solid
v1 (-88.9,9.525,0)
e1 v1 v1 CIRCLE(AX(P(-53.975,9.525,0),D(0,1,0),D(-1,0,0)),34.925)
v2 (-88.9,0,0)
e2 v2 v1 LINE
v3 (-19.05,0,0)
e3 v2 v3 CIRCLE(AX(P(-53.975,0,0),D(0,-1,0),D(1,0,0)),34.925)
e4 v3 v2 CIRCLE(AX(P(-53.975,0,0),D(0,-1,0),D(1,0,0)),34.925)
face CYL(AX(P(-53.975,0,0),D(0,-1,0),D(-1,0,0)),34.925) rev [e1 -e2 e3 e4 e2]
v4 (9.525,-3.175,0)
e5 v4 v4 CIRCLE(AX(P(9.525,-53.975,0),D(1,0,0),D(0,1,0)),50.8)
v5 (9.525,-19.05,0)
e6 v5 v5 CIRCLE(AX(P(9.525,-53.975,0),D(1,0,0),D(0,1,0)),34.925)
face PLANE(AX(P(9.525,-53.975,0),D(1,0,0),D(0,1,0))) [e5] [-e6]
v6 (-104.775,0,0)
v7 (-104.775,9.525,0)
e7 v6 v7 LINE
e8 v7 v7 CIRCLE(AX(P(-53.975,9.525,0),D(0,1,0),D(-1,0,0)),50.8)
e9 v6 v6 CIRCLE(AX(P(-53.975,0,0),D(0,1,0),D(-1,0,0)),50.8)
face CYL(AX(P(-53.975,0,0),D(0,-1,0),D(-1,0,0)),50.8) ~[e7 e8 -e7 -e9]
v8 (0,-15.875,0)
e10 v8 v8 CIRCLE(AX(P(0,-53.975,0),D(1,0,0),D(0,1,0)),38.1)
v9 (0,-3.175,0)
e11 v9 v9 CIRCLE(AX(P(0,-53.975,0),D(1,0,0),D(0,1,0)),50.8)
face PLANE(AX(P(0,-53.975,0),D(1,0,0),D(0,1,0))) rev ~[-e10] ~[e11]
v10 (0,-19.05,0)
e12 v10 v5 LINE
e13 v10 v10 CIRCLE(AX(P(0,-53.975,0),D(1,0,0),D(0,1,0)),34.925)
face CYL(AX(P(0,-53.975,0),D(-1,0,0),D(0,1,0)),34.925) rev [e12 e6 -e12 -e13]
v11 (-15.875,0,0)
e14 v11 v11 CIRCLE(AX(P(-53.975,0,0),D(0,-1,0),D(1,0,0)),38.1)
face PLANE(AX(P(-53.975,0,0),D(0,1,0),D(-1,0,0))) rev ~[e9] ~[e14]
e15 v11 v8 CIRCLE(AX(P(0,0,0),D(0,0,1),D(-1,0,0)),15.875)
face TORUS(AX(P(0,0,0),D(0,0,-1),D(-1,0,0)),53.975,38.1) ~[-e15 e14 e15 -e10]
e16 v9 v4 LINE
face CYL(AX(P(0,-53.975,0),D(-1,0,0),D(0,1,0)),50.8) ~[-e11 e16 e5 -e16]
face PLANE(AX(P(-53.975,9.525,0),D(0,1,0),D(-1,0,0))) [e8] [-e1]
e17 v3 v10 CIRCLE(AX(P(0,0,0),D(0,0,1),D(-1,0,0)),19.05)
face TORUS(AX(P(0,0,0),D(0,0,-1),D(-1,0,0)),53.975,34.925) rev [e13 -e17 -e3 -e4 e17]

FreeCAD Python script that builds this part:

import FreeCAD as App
import Part
import Sketcher

V = App.Vector
Q = App.Units.Quantity

doc = App.newDocument("Part")
body = doc.addObject("PartDesign::Body", "Body")

# Sketch on XZ plane
sketch1 = body.newObject("Sketcher::SketchObject", "Sketch")
sketch1.AttachmentSupport = (doc.getObject("XZ_Plane"), [""])
sketch1.MapMode = "FlatFace"
sketch1.addGeometry([
    Part.Circle(V(-53.975, 0, 0), V(0, 0, 1), 38.1),
    Part.Circle(V(-53.975, 0, 0), V(0, 0, 1), 34.925),
], False)
sketch1.addConstraint([
    Sketcher.Constraint("Coincident", 1, 3, 0, 3),
    Sketcher.Constraint("PointOnObject", 0, 3, -1),
    Sketcher.Constraint("Diameter", 0, Q("3 in")),
    Sketcher.Constraint("Diameter", 1, Q("2.75 in")),
    Sketcher.Constraint("DistanceX", 0, 3, -1, 1, Q("2.125 in")),
])
revolution = body.newObject("PartDesign::Revolution", "Revolution")
revolution.Profile = sketch1
revolution.ReferenceAxis = (sketch1, ["V_Axis"])
revolution.Angle = 90

# Sketch on YZ plane
sketch2 = body.newObject("Sketcher::SketchObject", "Sketch001")
sketch2.AttachmentSupport = (doc.getObject("YZ_Plane"), [""])
sketch2.MapMode = "FlatFace"
sketch2.addGeometry([
    Part.Circle(V(-53.975, 0, 0), V(0, 0, 1), 50.8),
    Part.Circle(V(-53.975, 0, 0), V(0, 0, 1), 34.925),
], False)
sketch2.addConstraint([
    Sketcher.Constraint("Coincident", 1, 3, 0, 3),
    Sketcher.Constraint("PointOnObject", 0, 3, -1),
    Sketcher.Constraint("Diameter", 0, Q("4 in")),
    Sketcher.Constraint("Diameter", 1, Q("2.75 in")),
    Sketcher.Constraint("DistanceX", 0, 3, -1, 1, Q("2.125 in")),
])
pad1 = body.newObject("PartDesign::Pad", "Pad")
pad1.Profile = sketch2
pad1.Length = Q("0.375 in")

# Sketch on XZ plane
sketch3 = body.newObject("Sketcher::SketchObject", "Sketch002")
sketch3.AttachmentSupport = (doc.getObject("XZ_Plane"), [""])
sketch3.MapMode = "FlatFace"
sketch3.addGeometry([
    Part.Circle(V(-53.975, 0, 0), V(0, 0, 1), 50.8),
    Part.Circle(V(-53.975, 0, 0), V(0, 0, 1), 34.925),
], False)
sketch3.addConstraint([
    Sketcher.Constraint("Coincident", 1, 3, 0, 3),
    Sketcher.Constraint("PointOnObject", 0, 3, -1),
    Sketcher.Constraint("Diameter", 0, Q("4 in")),
    Sketcher.Constraint("Diameter", 1, Q("2.75 in")),
    Sketcher.Constraint("DistanceX", 0, 3, -1, 1, Q("2.125 in")),
])
pad2 = body.newObject("PartDesign::Pad", "Pad001")
pad2.Profile = sketch3
pad2.Length = Q("0.375 in")
pad2.Reversed = True

doc.recompute()
